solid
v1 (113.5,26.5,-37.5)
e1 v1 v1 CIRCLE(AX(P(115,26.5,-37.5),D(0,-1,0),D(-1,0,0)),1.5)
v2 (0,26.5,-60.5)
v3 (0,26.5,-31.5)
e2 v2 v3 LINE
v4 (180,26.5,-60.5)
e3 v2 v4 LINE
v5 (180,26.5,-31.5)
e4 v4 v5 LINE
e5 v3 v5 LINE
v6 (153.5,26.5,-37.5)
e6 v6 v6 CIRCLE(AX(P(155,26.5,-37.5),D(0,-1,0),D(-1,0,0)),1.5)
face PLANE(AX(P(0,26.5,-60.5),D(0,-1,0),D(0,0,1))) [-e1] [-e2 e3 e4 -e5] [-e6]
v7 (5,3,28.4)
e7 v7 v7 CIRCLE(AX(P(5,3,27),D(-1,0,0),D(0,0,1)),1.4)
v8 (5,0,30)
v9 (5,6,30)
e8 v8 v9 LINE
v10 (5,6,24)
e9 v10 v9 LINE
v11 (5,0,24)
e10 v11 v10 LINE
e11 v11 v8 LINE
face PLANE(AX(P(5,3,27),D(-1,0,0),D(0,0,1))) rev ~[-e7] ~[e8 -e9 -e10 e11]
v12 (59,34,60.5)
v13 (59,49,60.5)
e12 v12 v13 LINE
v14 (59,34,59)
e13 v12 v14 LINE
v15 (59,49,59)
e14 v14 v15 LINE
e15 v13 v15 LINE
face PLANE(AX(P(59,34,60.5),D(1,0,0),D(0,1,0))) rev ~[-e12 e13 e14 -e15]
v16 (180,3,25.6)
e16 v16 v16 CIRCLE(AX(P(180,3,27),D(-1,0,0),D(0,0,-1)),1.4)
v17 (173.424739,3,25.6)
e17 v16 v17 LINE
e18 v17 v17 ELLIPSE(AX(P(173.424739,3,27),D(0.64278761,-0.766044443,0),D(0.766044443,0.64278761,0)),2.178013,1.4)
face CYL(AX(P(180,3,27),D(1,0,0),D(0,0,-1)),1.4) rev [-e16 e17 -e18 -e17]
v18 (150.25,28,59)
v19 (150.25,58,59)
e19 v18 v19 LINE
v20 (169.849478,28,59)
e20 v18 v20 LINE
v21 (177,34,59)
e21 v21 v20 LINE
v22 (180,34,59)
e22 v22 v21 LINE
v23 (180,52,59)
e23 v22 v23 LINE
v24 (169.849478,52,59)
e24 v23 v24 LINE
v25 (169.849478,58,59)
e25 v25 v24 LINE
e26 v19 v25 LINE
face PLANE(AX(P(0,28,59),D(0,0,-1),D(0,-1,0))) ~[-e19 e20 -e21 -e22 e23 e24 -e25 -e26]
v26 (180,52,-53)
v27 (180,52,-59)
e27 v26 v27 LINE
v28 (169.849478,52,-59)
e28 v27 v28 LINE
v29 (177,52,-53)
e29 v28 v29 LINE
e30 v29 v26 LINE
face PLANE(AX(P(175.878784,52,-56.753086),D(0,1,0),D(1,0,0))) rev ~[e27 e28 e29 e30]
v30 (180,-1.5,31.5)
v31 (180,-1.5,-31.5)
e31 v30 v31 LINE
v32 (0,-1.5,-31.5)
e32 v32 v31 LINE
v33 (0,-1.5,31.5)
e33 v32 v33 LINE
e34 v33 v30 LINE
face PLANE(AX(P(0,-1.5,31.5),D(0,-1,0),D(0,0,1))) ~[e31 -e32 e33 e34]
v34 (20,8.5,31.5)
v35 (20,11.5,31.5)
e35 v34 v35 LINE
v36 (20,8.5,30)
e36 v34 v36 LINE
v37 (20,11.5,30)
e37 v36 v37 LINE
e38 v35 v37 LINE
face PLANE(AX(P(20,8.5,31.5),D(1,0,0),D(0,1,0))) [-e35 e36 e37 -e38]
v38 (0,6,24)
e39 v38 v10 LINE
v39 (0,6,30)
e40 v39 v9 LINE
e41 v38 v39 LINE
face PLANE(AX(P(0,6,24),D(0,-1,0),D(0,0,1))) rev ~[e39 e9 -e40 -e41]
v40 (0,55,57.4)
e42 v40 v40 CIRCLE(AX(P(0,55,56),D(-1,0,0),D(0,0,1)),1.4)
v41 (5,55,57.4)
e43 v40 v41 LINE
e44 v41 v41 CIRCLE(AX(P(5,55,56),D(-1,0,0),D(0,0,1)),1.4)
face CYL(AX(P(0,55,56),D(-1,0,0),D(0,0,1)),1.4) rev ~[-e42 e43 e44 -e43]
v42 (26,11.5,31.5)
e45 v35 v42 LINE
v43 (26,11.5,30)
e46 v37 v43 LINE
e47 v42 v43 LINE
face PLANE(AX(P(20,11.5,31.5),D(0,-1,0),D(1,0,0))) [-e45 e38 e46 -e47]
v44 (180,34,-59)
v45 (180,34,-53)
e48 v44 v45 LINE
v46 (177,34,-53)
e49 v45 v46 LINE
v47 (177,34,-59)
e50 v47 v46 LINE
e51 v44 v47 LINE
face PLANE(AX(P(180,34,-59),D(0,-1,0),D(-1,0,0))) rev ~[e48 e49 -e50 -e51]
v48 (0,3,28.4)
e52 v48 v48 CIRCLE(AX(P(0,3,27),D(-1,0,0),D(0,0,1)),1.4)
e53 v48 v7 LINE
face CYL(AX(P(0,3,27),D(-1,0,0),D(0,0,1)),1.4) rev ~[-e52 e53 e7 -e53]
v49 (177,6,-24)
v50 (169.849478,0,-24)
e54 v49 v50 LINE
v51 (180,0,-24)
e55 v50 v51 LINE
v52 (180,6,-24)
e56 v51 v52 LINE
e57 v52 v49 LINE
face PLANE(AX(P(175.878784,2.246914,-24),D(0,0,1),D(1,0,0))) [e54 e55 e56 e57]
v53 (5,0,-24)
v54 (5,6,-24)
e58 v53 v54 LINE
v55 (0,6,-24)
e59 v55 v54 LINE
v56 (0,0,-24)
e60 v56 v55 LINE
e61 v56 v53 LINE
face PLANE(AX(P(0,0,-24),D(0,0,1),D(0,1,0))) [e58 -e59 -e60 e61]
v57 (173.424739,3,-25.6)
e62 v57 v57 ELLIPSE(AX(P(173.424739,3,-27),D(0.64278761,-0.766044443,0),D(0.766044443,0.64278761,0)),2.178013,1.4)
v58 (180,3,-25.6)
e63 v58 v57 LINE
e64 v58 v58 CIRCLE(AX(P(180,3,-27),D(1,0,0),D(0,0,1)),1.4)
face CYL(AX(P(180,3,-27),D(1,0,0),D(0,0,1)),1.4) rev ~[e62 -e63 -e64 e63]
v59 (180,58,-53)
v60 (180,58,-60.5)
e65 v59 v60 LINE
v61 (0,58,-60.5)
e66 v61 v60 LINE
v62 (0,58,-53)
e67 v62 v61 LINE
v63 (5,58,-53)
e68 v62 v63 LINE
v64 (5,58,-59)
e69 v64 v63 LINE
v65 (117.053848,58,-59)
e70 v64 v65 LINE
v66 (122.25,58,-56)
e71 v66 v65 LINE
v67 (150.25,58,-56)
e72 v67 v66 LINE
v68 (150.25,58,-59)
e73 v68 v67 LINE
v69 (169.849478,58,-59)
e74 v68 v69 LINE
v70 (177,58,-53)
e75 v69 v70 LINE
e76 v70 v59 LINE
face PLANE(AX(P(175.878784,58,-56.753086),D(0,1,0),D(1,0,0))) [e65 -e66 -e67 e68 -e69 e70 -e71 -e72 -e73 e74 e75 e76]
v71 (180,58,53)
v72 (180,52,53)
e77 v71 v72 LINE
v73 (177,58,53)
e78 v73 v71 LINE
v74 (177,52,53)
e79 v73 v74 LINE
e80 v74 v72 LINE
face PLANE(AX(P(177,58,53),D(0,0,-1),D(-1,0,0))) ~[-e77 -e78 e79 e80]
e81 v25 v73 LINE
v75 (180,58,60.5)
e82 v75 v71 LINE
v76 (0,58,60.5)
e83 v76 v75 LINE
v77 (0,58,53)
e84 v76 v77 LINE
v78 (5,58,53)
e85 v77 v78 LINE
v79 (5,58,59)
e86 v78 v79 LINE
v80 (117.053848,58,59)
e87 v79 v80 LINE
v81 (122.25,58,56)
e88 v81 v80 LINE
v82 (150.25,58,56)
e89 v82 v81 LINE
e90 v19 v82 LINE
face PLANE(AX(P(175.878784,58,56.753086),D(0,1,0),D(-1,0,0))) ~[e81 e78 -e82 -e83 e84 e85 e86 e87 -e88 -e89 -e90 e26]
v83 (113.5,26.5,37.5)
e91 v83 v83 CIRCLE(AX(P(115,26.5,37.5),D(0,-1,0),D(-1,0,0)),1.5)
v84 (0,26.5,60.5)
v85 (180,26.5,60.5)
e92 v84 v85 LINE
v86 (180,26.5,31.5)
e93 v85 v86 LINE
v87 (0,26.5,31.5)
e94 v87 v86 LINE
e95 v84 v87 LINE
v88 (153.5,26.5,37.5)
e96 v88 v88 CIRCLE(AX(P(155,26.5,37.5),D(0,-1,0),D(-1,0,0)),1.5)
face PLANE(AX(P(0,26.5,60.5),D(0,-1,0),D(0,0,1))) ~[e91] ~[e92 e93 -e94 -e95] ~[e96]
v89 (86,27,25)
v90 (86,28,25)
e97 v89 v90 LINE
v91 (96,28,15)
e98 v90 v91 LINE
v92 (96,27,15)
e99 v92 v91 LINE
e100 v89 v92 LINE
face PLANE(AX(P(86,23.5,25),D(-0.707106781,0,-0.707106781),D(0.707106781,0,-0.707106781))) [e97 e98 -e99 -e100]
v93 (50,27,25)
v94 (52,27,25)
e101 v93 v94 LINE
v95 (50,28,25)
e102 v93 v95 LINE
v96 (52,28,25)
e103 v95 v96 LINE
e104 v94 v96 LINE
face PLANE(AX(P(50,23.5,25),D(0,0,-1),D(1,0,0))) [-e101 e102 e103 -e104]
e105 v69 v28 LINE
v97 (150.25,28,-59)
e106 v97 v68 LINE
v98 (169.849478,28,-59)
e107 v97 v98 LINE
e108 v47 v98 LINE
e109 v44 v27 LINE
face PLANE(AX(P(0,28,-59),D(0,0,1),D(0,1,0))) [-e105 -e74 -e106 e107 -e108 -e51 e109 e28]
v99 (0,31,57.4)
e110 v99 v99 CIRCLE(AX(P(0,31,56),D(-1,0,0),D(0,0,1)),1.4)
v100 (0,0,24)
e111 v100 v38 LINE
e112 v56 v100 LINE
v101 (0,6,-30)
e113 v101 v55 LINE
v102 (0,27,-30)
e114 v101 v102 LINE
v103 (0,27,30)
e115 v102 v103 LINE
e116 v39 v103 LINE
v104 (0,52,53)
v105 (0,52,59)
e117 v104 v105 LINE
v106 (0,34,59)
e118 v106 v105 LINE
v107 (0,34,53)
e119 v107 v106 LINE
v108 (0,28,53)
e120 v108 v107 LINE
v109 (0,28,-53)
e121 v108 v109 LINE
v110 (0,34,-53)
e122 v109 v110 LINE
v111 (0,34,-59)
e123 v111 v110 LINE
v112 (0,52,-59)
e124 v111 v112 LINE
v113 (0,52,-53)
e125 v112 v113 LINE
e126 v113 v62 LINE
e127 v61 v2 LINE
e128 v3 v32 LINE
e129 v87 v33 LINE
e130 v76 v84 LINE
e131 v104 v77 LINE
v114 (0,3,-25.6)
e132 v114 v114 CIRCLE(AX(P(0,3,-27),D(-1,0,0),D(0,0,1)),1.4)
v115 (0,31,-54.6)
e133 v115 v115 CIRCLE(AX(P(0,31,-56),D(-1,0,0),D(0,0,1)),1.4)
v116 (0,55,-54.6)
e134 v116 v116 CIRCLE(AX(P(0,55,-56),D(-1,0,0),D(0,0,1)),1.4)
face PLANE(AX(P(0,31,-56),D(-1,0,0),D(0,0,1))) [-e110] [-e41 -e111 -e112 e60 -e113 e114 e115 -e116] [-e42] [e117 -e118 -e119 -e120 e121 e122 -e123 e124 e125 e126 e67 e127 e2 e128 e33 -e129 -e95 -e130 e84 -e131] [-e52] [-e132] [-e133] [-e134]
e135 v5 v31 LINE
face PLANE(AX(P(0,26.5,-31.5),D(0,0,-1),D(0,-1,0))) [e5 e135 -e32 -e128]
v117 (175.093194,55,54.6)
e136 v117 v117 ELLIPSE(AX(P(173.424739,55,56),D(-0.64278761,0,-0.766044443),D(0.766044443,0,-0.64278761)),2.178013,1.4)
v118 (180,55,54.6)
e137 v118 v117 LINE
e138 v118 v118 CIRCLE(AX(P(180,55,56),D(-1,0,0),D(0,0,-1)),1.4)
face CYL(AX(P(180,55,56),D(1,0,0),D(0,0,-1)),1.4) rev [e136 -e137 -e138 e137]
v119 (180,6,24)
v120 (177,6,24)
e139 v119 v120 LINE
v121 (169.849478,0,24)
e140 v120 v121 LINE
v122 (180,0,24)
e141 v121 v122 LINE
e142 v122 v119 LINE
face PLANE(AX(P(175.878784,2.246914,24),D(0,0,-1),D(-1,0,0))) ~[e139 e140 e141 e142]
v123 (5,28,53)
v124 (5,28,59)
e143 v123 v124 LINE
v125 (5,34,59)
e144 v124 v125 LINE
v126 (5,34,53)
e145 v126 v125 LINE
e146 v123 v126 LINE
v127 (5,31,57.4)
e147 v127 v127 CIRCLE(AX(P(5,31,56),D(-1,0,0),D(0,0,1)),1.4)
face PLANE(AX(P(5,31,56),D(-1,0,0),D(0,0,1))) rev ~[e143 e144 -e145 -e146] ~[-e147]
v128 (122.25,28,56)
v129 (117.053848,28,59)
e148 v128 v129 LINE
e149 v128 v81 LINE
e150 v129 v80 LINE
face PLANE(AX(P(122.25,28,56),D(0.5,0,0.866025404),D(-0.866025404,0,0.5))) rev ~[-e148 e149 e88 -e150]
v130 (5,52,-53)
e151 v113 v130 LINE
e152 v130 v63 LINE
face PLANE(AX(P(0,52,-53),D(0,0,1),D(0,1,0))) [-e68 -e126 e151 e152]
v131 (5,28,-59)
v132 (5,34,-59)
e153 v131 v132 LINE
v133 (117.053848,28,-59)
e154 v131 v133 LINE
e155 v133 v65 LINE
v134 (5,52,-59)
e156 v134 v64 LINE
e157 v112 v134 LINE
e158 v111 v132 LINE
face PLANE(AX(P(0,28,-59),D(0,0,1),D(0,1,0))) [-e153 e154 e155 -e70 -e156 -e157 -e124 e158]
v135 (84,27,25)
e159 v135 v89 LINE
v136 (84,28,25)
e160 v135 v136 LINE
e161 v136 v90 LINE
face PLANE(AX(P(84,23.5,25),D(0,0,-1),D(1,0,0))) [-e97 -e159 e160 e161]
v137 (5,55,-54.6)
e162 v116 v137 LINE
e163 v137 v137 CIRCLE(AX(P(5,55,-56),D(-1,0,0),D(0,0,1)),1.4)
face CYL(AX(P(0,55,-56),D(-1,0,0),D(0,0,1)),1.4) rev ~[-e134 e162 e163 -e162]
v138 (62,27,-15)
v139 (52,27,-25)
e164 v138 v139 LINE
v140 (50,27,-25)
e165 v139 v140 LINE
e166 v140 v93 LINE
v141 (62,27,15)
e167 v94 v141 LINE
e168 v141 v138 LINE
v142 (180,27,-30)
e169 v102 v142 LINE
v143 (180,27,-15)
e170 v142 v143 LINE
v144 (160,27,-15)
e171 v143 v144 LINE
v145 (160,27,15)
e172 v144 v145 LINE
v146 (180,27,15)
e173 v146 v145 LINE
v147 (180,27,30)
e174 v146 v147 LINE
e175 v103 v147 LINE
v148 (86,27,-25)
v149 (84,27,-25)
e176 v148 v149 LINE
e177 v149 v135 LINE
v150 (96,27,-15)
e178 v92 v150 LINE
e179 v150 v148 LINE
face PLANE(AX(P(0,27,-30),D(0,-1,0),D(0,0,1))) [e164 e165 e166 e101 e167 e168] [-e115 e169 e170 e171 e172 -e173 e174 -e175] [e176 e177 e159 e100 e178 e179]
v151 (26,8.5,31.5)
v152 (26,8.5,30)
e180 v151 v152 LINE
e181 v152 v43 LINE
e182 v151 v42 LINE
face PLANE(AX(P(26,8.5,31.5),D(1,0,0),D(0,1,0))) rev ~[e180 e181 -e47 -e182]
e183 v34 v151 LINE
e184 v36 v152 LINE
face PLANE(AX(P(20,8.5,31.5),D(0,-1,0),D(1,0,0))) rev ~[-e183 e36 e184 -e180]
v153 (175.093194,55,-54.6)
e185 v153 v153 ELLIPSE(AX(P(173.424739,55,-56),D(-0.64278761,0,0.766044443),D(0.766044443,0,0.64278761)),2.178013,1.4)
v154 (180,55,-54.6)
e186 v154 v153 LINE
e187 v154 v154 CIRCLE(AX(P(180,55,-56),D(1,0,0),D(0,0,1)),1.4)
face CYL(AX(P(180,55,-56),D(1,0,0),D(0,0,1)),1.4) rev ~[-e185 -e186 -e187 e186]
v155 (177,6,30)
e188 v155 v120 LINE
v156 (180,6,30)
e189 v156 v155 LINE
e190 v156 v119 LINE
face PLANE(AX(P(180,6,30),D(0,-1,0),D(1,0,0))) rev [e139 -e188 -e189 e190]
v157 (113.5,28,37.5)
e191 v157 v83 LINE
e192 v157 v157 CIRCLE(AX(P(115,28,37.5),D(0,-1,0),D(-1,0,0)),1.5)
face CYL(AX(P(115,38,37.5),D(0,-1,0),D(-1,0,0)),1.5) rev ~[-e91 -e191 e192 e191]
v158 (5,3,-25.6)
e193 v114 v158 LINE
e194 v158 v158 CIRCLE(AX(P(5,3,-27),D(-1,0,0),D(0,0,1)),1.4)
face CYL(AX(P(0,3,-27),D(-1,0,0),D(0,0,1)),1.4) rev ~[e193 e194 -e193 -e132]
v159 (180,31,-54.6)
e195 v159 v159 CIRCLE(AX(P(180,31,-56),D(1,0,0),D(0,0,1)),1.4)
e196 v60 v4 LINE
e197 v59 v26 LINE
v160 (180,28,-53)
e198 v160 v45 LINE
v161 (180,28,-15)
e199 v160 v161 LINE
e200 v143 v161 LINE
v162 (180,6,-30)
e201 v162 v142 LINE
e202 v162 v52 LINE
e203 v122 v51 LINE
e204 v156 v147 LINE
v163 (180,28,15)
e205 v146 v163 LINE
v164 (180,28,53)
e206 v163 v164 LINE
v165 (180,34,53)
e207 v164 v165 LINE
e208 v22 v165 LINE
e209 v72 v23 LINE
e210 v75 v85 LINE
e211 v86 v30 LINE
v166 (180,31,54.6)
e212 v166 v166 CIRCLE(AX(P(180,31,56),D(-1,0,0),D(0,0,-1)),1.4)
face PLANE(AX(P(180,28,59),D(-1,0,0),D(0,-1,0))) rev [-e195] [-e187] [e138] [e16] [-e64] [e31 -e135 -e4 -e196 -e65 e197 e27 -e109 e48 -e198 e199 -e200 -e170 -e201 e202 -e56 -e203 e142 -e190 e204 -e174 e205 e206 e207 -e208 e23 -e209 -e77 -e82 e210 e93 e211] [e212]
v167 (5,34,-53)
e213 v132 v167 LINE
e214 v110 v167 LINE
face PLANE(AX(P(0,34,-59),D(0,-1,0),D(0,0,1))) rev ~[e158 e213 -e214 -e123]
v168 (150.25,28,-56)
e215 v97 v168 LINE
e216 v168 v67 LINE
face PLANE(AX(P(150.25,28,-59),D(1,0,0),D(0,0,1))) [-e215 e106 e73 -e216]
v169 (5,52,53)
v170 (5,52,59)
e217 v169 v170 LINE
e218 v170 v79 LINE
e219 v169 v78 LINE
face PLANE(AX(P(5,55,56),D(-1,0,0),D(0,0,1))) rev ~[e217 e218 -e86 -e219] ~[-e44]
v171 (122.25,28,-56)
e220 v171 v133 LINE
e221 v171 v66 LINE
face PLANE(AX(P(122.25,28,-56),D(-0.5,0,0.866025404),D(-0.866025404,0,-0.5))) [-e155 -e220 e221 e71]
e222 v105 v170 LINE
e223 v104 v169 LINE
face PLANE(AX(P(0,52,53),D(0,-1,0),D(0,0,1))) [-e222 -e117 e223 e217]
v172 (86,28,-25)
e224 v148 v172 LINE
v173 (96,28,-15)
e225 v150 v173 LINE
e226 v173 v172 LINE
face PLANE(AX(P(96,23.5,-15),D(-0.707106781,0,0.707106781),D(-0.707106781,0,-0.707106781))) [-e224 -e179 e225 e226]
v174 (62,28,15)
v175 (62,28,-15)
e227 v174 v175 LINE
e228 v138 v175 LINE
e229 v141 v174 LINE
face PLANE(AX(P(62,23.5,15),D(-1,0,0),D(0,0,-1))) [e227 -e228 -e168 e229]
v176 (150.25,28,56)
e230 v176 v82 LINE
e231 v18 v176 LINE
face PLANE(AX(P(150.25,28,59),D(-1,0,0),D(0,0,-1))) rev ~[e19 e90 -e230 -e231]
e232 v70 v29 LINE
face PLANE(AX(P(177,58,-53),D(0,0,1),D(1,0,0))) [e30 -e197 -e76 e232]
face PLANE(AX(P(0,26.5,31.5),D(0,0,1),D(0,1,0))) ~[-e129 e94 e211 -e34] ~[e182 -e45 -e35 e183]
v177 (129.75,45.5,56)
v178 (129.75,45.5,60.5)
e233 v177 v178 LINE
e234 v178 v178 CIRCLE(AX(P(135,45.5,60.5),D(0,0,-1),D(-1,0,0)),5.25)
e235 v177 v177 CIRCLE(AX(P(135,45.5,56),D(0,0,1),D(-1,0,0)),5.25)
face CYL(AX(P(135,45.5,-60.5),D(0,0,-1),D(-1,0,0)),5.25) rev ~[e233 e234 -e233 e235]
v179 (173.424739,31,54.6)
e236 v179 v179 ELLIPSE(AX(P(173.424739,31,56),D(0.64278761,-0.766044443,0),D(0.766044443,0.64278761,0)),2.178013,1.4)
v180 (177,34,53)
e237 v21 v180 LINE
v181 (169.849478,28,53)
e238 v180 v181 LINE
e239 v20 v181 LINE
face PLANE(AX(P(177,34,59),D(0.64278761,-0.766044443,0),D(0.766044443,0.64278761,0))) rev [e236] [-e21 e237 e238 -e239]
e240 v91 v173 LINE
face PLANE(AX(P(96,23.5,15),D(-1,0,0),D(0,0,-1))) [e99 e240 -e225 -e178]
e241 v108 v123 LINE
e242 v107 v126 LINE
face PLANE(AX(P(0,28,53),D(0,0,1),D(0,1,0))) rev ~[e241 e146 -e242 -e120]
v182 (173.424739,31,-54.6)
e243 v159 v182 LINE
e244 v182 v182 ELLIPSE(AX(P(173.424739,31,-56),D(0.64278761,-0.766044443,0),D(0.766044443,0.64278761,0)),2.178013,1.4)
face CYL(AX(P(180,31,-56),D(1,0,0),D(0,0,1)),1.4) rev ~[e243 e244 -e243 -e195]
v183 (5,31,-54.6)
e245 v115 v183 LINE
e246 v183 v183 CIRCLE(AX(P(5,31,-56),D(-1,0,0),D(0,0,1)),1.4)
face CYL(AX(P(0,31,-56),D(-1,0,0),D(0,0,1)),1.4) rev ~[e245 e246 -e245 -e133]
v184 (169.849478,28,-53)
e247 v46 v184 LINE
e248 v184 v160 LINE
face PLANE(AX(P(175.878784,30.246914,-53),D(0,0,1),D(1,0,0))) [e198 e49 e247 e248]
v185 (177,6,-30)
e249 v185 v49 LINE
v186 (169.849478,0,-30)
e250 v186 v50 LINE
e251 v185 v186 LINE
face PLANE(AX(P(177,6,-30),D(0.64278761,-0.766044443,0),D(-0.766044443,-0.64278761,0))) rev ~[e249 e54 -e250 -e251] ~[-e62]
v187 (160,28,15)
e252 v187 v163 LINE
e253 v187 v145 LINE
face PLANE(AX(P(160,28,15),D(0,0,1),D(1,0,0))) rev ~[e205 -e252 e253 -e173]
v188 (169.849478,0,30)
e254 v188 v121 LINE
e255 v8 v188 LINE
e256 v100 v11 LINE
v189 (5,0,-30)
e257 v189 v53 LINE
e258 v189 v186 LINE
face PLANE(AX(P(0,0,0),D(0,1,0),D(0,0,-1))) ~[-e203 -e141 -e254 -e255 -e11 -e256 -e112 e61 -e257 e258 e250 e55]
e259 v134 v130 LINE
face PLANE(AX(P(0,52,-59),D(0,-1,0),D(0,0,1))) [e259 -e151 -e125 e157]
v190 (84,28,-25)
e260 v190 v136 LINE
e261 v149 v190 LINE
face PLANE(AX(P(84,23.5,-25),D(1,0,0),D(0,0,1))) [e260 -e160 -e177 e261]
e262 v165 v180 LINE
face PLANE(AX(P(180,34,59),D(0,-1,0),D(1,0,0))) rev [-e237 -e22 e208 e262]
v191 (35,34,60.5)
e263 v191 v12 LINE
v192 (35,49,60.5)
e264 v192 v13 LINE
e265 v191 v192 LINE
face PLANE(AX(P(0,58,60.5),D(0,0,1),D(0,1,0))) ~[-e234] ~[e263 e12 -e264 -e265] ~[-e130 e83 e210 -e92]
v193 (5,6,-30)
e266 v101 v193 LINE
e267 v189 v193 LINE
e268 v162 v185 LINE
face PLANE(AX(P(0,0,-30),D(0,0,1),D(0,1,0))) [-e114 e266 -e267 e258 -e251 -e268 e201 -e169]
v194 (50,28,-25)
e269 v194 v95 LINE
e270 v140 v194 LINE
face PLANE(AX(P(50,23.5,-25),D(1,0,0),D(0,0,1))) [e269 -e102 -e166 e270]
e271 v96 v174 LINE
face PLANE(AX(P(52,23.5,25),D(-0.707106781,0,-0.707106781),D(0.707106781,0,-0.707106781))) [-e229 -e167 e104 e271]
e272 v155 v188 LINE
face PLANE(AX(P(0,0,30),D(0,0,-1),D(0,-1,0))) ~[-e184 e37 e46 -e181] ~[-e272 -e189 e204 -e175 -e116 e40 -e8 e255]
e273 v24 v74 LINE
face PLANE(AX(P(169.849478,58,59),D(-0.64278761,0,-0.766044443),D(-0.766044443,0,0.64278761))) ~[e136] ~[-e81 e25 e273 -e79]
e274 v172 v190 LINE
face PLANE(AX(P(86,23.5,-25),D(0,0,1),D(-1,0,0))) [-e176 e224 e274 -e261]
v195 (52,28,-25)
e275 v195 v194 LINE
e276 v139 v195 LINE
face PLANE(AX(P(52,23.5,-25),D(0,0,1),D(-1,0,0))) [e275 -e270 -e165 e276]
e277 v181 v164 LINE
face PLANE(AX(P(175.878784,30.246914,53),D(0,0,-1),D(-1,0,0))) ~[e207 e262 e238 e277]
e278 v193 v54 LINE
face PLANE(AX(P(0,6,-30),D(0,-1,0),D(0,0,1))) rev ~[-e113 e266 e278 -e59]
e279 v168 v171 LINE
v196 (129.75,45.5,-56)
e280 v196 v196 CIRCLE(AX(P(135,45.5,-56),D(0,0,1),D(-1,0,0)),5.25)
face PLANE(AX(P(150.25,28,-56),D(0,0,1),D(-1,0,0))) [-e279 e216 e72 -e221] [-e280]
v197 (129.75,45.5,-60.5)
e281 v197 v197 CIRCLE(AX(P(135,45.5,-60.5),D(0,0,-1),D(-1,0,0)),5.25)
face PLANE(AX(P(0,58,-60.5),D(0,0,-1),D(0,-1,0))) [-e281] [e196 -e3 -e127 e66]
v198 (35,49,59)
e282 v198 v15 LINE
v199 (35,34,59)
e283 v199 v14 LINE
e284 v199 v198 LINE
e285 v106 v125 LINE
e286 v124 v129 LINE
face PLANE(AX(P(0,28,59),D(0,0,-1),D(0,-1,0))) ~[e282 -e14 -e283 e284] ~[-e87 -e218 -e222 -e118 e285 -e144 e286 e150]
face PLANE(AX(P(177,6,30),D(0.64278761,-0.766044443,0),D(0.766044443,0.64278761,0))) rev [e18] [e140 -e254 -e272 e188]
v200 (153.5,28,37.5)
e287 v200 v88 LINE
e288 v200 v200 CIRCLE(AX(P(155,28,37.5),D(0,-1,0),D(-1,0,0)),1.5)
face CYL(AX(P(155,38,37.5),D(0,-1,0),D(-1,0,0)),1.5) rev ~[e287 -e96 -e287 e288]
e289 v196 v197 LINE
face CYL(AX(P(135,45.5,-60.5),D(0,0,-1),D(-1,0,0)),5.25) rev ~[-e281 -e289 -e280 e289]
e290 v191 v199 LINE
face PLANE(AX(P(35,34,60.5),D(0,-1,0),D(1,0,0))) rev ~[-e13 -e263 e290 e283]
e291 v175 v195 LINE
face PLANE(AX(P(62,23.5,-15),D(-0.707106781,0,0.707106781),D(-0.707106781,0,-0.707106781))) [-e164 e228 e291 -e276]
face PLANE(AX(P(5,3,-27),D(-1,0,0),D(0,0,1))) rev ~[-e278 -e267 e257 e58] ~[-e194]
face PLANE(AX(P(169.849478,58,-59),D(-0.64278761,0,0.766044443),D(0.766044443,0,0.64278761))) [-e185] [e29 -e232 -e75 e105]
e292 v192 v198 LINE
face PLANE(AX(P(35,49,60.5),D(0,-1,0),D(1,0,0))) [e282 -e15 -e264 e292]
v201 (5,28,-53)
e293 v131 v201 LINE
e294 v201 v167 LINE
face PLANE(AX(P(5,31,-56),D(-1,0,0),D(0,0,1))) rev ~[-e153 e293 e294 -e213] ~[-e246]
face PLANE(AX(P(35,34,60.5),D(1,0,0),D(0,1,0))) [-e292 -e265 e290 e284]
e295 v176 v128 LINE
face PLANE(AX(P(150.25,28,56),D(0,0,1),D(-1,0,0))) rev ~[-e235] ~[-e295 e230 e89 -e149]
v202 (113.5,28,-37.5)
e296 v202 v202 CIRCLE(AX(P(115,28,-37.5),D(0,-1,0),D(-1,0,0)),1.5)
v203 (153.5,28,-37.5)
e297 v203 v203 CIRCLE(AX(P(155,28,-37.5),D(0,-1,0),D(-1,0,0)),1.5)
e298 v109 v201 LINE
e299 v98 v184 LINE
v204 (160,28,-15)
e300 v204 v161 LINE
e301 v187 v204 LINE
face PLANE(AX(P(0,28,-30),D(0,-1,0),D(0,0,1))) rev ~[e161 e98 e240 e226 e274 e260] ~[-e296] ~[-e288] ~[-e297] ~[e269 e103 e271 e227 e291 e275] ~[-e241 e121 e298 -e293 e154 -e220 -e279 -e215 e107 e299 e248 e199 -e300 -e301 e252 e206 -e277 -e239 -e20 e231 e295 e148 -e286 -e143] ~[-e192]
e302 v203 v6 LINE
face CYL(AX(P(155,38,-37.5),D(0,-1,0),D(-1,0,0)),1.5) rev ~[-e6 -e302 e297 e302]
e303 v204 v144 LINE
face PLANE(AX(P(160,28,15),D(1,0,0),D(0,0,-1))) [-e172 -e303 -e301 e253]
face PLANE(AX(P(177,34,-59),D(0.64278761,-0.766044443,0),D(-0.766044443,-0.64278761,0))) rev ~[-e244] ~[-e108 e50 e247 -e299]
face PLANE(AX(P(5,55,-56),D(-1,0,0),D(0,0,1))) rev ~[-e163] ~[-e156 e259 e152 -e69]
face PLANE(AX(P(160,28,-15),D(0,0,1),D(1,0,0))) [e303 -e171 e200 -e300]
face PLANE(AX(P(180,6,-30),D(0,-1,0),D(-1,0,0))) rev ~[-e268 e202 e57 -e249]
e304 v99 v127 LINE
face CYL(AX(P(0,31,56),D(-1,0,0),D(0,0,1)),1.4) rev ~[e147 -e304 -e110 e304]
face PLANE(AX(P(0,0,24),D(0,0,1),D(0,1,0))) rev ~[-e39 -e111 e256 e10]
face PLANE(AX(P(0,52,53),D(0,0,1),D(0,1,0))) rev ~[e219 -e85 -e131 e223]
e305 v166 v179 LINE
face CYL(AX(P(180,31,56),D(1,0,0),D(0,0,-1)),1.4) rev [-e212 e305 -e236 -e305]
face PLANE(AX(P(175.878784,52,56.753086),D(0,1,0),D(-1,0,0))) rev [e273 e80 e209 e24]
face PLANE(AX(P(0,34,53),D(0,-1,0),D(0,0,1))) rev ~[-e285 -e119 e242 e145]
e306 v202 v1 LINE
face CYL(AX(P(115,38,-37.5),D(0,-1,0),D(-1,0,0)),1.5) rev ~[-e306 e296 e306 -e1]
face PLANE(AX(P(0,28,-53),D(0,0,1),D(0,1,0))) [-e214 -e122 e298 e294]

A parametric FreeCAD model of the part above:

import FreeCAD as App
import Part
import Sketcher

V = App.Vector
Q = App.Units.Quantity

doc = App.newDocument("Part")
body = doc.addObject("PartDesign::Body", "Body")

sketch1 = doc.addObject("Sketcher::SketchObject", "Sketch")
body.addObject(sketch1)
sketch1.AttachmentSupport = (doc.YZ_Plane, [""])
sketch1.MapMode = "FlatFace"
sketch1.addGeometry([
    Part.LineSegment(V(0, -30, 0), V(0, 0, 0)),
    Part.LineSegment(V(0, 0, 0), V(-1.5, 0, 0)),
    Part.LineSegment(V(-1.5, 0, 0), V(-1.5, -31.5, 0)),
    Part.LineSegment(V(-1.5, -31.5, 0), V(26.5, -31.5, 0)),
    Part.LineSegment(V(26.5, -31.5, 0), V(26.5, -60.5, 0)),
    Part.LineSegment(V(26.5, -60.5, 0), V(58, -60.5, 0)),
    Part.LineSegment(V(58, -60.5, 0), V(58, -59, 0)),
    Part.LineSegment(V(58, -59, 0), V(28, -59, 0)),
    Part.LineSegment(V(28, -59, 0), V(28, -30, 0)),
    Part.LineSegment(V(28, -30, 0), V(0, -30, 0)),
], False)
sketch1.addConstraint([
    Sketcher.Constraint("Coincident", 0, 2, 1, 1),
    Sketcher.Constraint("Coincident", 1, 2, 2, 1),
    Sketcher.Constraint("Coincident", 2, 2, 3, 1),
    Sketcher.Constraint("Coincident", 3, 2, 4, 1),
    Sketcher.Constraint("Coincident", 4, 2, 5, 1),
    Sketcher.Constraint("Coincident", 5, 2, 6, 1),
    Sketcher.Constraint("Coincident", 6, 2, 7, 1),
    Sketcher.Constraint("Coincident", 7, 2, 8, 1),
    Sketcher.Constraint("Coincident", 8, 2, 9, 1),
    Sketcher.Constraint("Coincident", 9, 2, 0, 1),
    Sketcher.Constraint("Vertical", 0),
    Sketcher.Constraint("Horizontal", 1),
    Sketcher.Constraint("Vertical", 2),
    Sketcher.Constraint("Horizontal", 3),
    Sketcher.Constraint("Vertical", 4),
    Sketcher.Constraint("Horizontal", 5),
    Sketcher.Constraint("Vertical", 6),
    Sketcher.Constraint("Horizontal", 7),
    Sketcher.Constraint("Vertical", 8),
    Sketcher.Constraint("Horizontal", 9),
    Sketcher.Constraint("Coincident", 0, 2, -1, 1),
    Sketcher.Constraint("Equal", 3, 9),
    Sketcher.Constraint("Equal", 7, 0),
    Sketcher.Constraint("Equal", 5, 2),
    Sketcher.Constraint("Equal", 1, 6),
    Sketcher.Constraint("DistanceX", 3, 1, 3, 2, Q("28 mm")),
    Sketcher.Constraint("DistanceX", 7, 2, 7, 1, Q("30 mm")),
    Sketcher.Constraint("DistanceY", 4, 2, 4, 1, Q("29 mm")),
    Sketcher.Constraint("DistanceX", 1, 2, 1, 1, Q("1.5 mm")),
])
pad1 = doc.addObject("PartDesign::Pad", "Pad")
body.addObject(pad1)
pad1.Profile = sketch1
pad1.Length = 180
doc.recompute()

mirrored = doc.addObject("PartDesign::Mirrored", "Mirrored")
body.addObject(mirrored)
mirrored.Originals = [pad1]
mirrored.MirrorPlane = (doc.XY_Plane, [""])
body.Tip = mirrored

sketch2 = doc.addObject("Sketcher::SketchObject", "Sketch001")
body.addObject(sketch2)
sketch2.AttachmentSupport = (doc.YZ_Plane, [""])
sketch2.MapMode = "FlatFace"
sketch2.addGeometry([
    Part.LineSegment(V(28, -30, 0), V(27, -30, 0)),
    Part.LineSegment(V(27, -30, 0), V(27, 30, 0)),
    Part.LineSegment(V(27, 30, 0), V(28, 30, 0)),
    Part.LineSegment(V(28, 30, 0), V(28, -30, 0)),
], False)
sketch2.addConstraint([
    Sketcher.Constraint("Coincident", 0, 2, 1, 1),
    Sketcher.Constraint("Coincident", 1, 2, 2, 1),
    Sketcher.Constraint("Coincident", 2, 2, 3, 1),
    Sketcher.Constraint("Coincident", 3, 2, 0, 1),
    Sketcher.Constraint("Horizontal", 0),
    Sketcher.Constraint("Vertical", 1),
    Sketcher.Constraint("Horizontal", 2),
    Sketcher.Constraint("Vertical", 3),
    Sketcher.Constraint("DistanceX", 0, 2, 0, 1, Q("1 mm")),
    Sketcher.Constraint("DistanceY", 1, 1, 1, 2, Q("60 mm")),
    Sketcher.Constraint("DistanceX", -1, 1, 0, 2, Q("27 mm")),
    Sketcher.Constraint("DistanceY", 0, 2, -1, 1, Q("30 mm")),
])
pad2 = doc.addObject("PartDesign::Pad", "Pad001")
body.addObject(pad2)
pad2.Profile = sketch2
pad2.Length = 180

sketch3 = doc.addObject("Sketcher::SketchObject", "Sketch002")
body.addObject(sketch3)
sketch3.AttachmentSupport = (doc.XZ_Plane, [""])
sketch3.MapMode = "FlatFace"
sketch3.AttachmentOffset = App.Placement(V(0, 0, -28), App.Rotation())
sketch3.addGeometry([
    Part.LineSegment(V(160, -15, 0), V(160, 15, 0)),
    Part.LineSegment(V(160, 15, 0), V(200, 15, 0)),
    Part.LineSegment(V(200, 15, 0), V(200, -15, 0)),
    Part.LineSegment(V(200, -15, 0), V(160, -15, 0)),
], False)
sketch3.addConstraint([
    Sketcher.Constraint("Coincident", 0, 2, 1, 1),
    Sketcher.Constraint("Coincident", 1, 2, 2, 1),
    Sketcher.Constraint("Coincident", 2, 2, 3, 1),
    Sketcher.Constraint("Coincident", 3, 2, 0, 1),
    Sketcher.Constraint("Vertical", 0),
    Sketcher.Constraint("Horizontal", 1),
    Sketcher.Constraint("Vertical", 2),
    Sketcher.Constraint("Horizontal", 3),
    Sketcher.Constraint("DistanceX", 1, 1, 1, 2, Q("40 mm")),
    Sketcher.Constraint("DistanceY", 0, 1, 0, 2, Q("30 mm")),
    Sketcher.Constraint("DistanceX", -1, 1, 0, 2, Q("160 mm")),
    Sketcher.Constraint("DistanceY", -1, 1, 0, 2, Q("15 mm")),
])
pocket1 = doc.addObject("PartDesign::Pocket", "Pocket")
body.addObject(pocket1)
pocket1.Profile = sketch3
pocket1.Length = 3
pocket1.Reversed = True

sketch4 = doc.addObject("Sketcher::SketchObject", "Sketch003")
body.addObject(sketch4)
sketch4.AttachmentSupport = (doc.YZ_Plane, [""])
sketch4.MapMode = "FlatFace"
sketch4.addGeometry([
    Part.LineSegment(V(34, -59, 0), V(28, -59, 0)),
    Part.LineSegment(V(28, -59, 0), V(28, -53, 0)),
    Part.LineSegment(V(28, -53, 0), V(34, -53, 0)),
    Part.LineSegment(V(34, -53, 0), V(34, -59, 0)),
    Part.LineSegment(V(58, -59, 0), V(52, -59, 0)),
    Part.LineSegment(V(52, -59, 0), V(52, -53, 0)),
    Part.LineSegment(V(52, -53, 0), V(58, -53, 0)),
    Part.LineSegment(V(58, -53, 0), V(58, -59, 0)),
    Part.LineSegment(V(58, 53, 0), V(52, 53, 0)),
    Part.LineSegment(V(52, 53, 0), V(52, 59, 0)),
    Part.LineSegment(V(52, 59, 0), V(58, 59, 0)),
    Part.LineSegment(V(58, 59, 0), V(58, 53, 0)),
    Part.LineSegment(V(34, 53, 0), V(28, 53, 0)),
    Part.LineSegment(V(28, 53, 0), V(28, 59, 0)),
    Part.LineSegment(V(28, 59, 0), V(34, 59, 0)),
    Part.LineSegment(V(34, 59, 0), V(34, 53, 0)),
    Part.LineSegment(V(6, 24, 0), V(0, 24, 0)),
    Part.LineSegment(V(0, 24, 0), V(0, 30, 0)),
    Part.LineSegment(V(0, 30, 0), V(6, 30, 0)),
    Part.LineSegment(V(6, 30, 0), V(6, 24, 0)),
    Part.LineSegment(V(6, -30, 0), V(0, -30, 0)),
    Part.LineSegment(V(0, -30, 0), V(0, -24, 0)),
    Part.LineSegment(V(0, -24, 0), V(6, -24, 0)),
    Part.LineSegment(V(6, -24, 0), V(6, -30, 0)),
], False)
sketch4.addConstraint([
    Sketcher.Constraint("Coincident", 0, 2, 1, 1),
    Sketcher.Constraint("Coincident", 1, 2, 2, 1),
    Sketcher.Constraint("Coincident", 2, 2, 3, 1),
    Sketcher.Constraint("Coincident", 3, 2, 0, 1),
    Sketcher.Constraint("Coincident", 4, 2, 5, 1),
    Sketcher.Constraint("Coincident", 5, 2, 6, 1),
    Sketcher.Constraint("Coincident", 6, 2, 7, 1),
    Sketcher.Constraint("Coincident", 7, 2, 4, 1),
    Sketcher.Constraint("Coincident", 8, 2, 9, 1),
    Sketcher.Constraint("Coincident", 9, 2, 10, 1),
    Sketcher.Constraint("Coincident", 10, 2, 11, 1),
    Sketcher.Constraint("Coincident", 11, 2, 8, 1),
    Sketcher.Constraint("Coincident", 12, 2, 13, 1),
    Sketcher.Constraint("Coincident", 13, 2, 14, 1),
    Sketcher.Constraint("Coincident", 14, 2, 15, 1),
    Sketcher.Constraint("Coincident", 15, 2, 12, 1),
    Sketcher.Constraint("Coincident", 16, 2, 17, 1),
    Sketcher.Constraint("Coincident", 17, 2, 18, 1),
    Sketcher.Constraint("Coincident", 18, 2, 19, 1),
    Sketcher.Constraint("Coincident", 19, 2, 16, 1),
    Sketcher.Constraint("Coincident", 20, 2, 21, 1),
    Sketcher.Constraint("Coincident", 21, 2, 22, 1),
    Sketcher.Constraint("Coincident", 22, 2, 23, 1),
    Sketcher.Constraint("Coincident", 23, 2, 20, 1),
    Sketcher.Constraint("Horizontal", 0),
    Sketcher.Constraint("Vertical", 1),
    Sketcher.Constraint("Horizontal", 2),
    Sketcher.Constraint("Vertical", 3),
    Sketcher.Constraint("Horizontal", 4),
    Sketcher.Constraint("Vertical", 5),
    Sketcher.Constraint("Horizontal", 6),
    Sketcher.Constraint("Vertical", 7),
    Sketcher.Constraint("Horizontal", 8),
    Sketcher.Constraint("Vertical", 9),
    Sketcher.Constraint("Horizontal", 10),
    Sketcher.Constraint("Vertical", 11),
    Sketcher.Constraint("Horizontal", 12),
    Sketcher.Constraint("Vertical", 13),
    Sketcher.Constraint("Horizontal", 14),
    Sketcher.Constraint("Vertical", 15),
    Sketcher.Constraint("Horizontal", 16),
    Sketcher.Constraint("Vertical", 17),
    Sketcher.Constraint("Horizontal", 18),
    Sketcher.Constraint("Vertical", 19),
    Sketcher.Constraint("Horizontal", 20),
    Sketcher.Constraint("Vertical", 21),
    Sketcher.Constraint("Horizontal", 22),
    Sketcher.Constraint("Vertical", 23),
    Sketcher.Constraint("Symmetric", 17, 2, 20, 2, -1, 1),
    Sketcher.Constraint("Symmetric", 5, 2, 8, 2, -1),
    Sketcher.Constraint("Symmetric", 7, 2, 10, 2, -1),
    Sketcher.Constraint("Symmetric", 1, 2, 12, 2, -1),
    Sketcher.Constraint("Symmetric", 3, 2, 14, 2, -1),
    Sketcher.Constraint("Symmetric", 16, 2, 21, 2, -1),
    Sketcher.Constraint("Horizontal", 3, 2, 4, 2),
    Sketcher.Constraint("Horizontal", 2, 2, 5, 2),
    Sketcher.Constraint("Vertical", 19, 2, 22, 2),
    Sketcher.Constraint("Equal", 2, 4),
    Sketcher.Constraint("Equal", 14, 16),
    Sketcher.Constraint("Equal", 22, 1),
    Sketcher.Constraint("Equal", 15, 17),
    Sketcher.Constraint("DistanceX", 0, 2, 0, 1, Q("6 mm")),
    Sketcher.Constraint("DistanceX", -1, 1, 0, 2, Q("28 mm")),
    Sketcher.Constraint("DistanceY", 0, 2, -1, 1, Q("59 mm")),
    Sketcher.Constraint("DistanceX", -1, 1, 4, 2, Q("52 mm")),
    Sketcher.Constraint("DistanceY", -1, 1, 16, 2, Q("24 mm")),
])
pad3 = doc.addObject("PartDesign::Pad", "Pad002")
body.addObject(pad3)
pad3.Profile = sketch4
pad3.Length = 5

sketch5 = doc.addObject("Sketcher::SketchObject", "Sketch004")
body.addObject(sketch5)
sketch5.AttachmentSupport = (doc.YZ_Plane, [""])
sketch5.MapMode = "FlatFace"
sketch5.addGeometry([
    Part.Circle(V(55, -56, 0), V(0, 0, 1), 1.4),
    Part.Circle(V(31, -56, 0), V(0, 0, 1), 1.4),
    Part.Circle(V(3, -27, 0), V(0, 0, 1), 1.4),
    Part.Circle(V(3, 27, 0), V(0, 0, 1), 1.4),
    Part.Circle(V(31, 56, 0), V(0, 0, 1), 1.4),
    Part.Circle(V(55, 56, 0), V(0, 0, 1), 1.4),
], False)
sketch5.addConstraint([
    Sketcher.Constraint("Equal", 0, 1),
    Sketcher.Constraint("Equal", 1, 2),
    Sketcher.Constraint("Equal", 2, 3),
    Sketcher.Constraint("Equal", 3, 4),
    Sketcher.Constraint("Equal", 4, 5),
    Sketcher.Constraint("Symmetric", 2, 3, 3, 3, -1),
    Sketcher.Constraint("Symmetric", 1, 3, 4, 3, -1),
    Sketcher.Constraint("Symmetric", 0, 3, 5, 3, -1),
    Sketcher.Constraint("Horizontal", 0, 3, 1, 3),
    Sketcher.Constraint("Diameter", 0, Q("2.8 mm")),
    Sketcher.Constraint("DistanceX", -1, 1, 0, 3, Q("55 mm")),
    Sketcher.Constraint("DistanceY", 0, 3, -1, 1, Q("56 mm")),
    Sketcher.Constraint("DistanceX", -1, 1, 1, 3, Q("31 mm")),
    Sketcher.Constraint("DistanceX", -1, 1, 2, 3, Q("3 mm")),
    Sketcher.Constraint("DistanceY", 2, 3, -1, 1, Q("27 mm")),
])
pocket2 = doc.addObject("PartDesign::Pocket", "Pocket001")
body.addObject(pocket2)
pocket2.Profile = sketch5
pocket2.Length = 5
pocket2.Reversed = True

sketch6 = doc.addObject("Sketcher::SketchObject", "Sketch005")
body.addObject(sketch6)
sketch6.AttachmentSupport = (doc.XY_Plane, [""])
sketch6.MapMode = "FlatFace"
sketch6.AttachmentOffset = App.Placement(V(0, 0, -60.5), App.Rotation())
sketch6.addGeometry(Part.Circle(V(135, 46, 0), V(0, 0, 1), 5), False)
sketch6.addConstraint([
    Sketcher.Constraint("Diameter", 0, Q("10.5 mm")),
    Sketcher.Constraint("DistanceX", -1, 1, 0, 3, Q("135 mm")),
    Sketcher.Constraint("DistanceY", -1, 1, 0, 3, Q("45.5 mm")),
])
pocket3 = doc.addObject("PartDesign::Pocket", "Pocket002")
body.addObject(pocket3)
pocket3.Profile = sketch6
pocket3.Type = "ThroughAll"
pocket3.Reversed = True

sketch7 = doc.addObject("Sketcher::SketchObject", "Sketch006")
body.addObject(sketch7)
sketch7.AttachmentSupport = (doc.XY_Plane, [""])
sketch7.MapMode = "FlatFace"
sketch7.AttachmentOffset = App.Placement(V(0, 0, -30), App.Rotation())
sketch7.addGeometry([
    Part.LineSegment(V(180, 0, 0), V(180, 6, 0)),
    Part.LineSegment(V(180, 6, 0), V(177, 6, 0)),
    Part.LineSegment(V(177, 6, 0), V(169.8, 0, 0)),
    Part.LineSegment(V(169.8, 0, 0), V(180, 0, 0)),
], False)
sketch7.addConstraint([
    Sketcher.Constraint("Coincident", 0, 2, 1, 1),
    Sketcher.Constraint("Coincident", 1, 2, 2, 1),
    Sketcher.Constraint("Coincident", 2, 2, 3, 1),
    Sketcher.Constraint("Coincident", 3, 2, 0, 1),
    Sketcher.Constraint("Vertical", 0),
    Sketcher.Constraint("Horizontal", 1),
    Sketcher.Constraint("Horizontal", 3),
    Sketcher.Constraint("PointOnObject", 2, 2, -1),
    Sketcher.Constraint("DistanceX", 1, 2, 1, 1, Q("3 mm")),
    Sketcher.Constraint("DistanceY", 0, 1, 0, 2, Q("6 mm")),
    Sketcher.Constraint("Angle", 2, Q("-140 deg")),
    Sketcher.Constraint("DistanceX", -1, 1, 0, 2, Q("180 mm")),
])
pad4 = doc.addObject("PartDesign::Pad", "Pad003")
body.addObject(pad4)
pad4.Profile = sketch7
pad4.Length = 6

sketch8 = doc.addObject("Sketcher::SketchObject", "Sketch007")
body.addObject(sketch8)
sketch8.AttachmentSupport = (doc.YZ_Plane, [""])
sketch8.MapMode = "FlatFace"
sketch8.AttachmentOffset = App.Placement(V(0, 0, 180), App.Rotation())
sketch8.addGeometry(Part.Circle(V(3, -27, 0), V(0, 0, 1), 1.4), False)
sketch8.addConstraint([
    Sketcher.Constraint("Diameter", 0, Q("2.8 mm")),
    Sketcher.Constraint("DistanceX", -1, 1, 0, 3, Q("3 mm")),
    Sketcher.Constraint("DistanceY", 0, 3, -1, 1, Q("27 mm")),
])
pocket4 = doc.addObject("PartDesign::Pocket", "Pocket003")
body.addObject(pocket4)
pocket4.Profile = sketch8
pocket4.Length = 10

sketch9 = doc.addObject("Sketcher::SketchObject", "Sketch008")
body.addObject(sketch9)
sketch9.AttachmentSupport = (doc.XY_Plane, [""])
sketch9.MapMode = "FlatFace"
sketch9.AttachmentOffset = App.Placement(V(0, 0, -59), App.Rotation())
sketch9.addGeometry([
    Part.LineSegment(V(180, 28, 0), V(180, 34, 0)),
    Part.LineSegment(V(180, 34, 0), V(177, 34, 0)),
    Part.LineSegment(V(177, 34, 0), V(169.8, 28, 0)),
    Part.LineSegment(V(169.8, 28, 0), V(180, 28, 0)),
], False)
sketch9.addConstraint([
    Sketcher.Constraint("Coincident", 0, 2, 1, 1),
    Sketcher.Constraint("Coincident", 1, 2, 2, 1),
    Sketcher.Constraint("Coincident", 2, 2, 3, 1),
    Sketcher.Constraint("Coincident", 3, 2, 0, 1),
    Sketcher.Constraint("Vertical", 0),
    Sketcher.Constraint("Horizontal", 1),
    Sketcher.Constraint("Horizontal", 3),
    Sketcher.Constraint("DistanceX", 1, 2, 1, 1, Q("3 mm")),
    Sketcher.Constraint("DistanceY", 0, 1, 0, 2, Q("6 mm")),
    Sketcher.Constraint("Angle", 2, Q("-140 deg")),
    Sketcher.Constraint("DistanceX", -1, 1, 0, 2, Q("180 mm")),
    Sketcher.Constraint("DistanceY", -1, 1, 0, 2, Q("34 mm")),
])
pad5 = doc.addObject("PartDesign::Pad", "Pad004")
body.addObject(pad5)
pad5.Profile = sketch9
pad5.Length = 6

sketch10 = doc.addObject("Sketcher::SketchObject", "Sketch009")
body.addObject(sketch10)
sketch10.AttachmentSupport = (doc.YZ_Plane, [""])
sketch10.MapMode = "FlatFace"
sketch10.AttachmentOffset = App.Placement(V(0, 0, 180), App.Rotation())
sketch10.addGeometry(Part.Circle(V(31, -56, 0), V(0, 0, 1), 1.4), False)
sketch10.addConstraint([
    Sketcher.Constraint("Diameter", 0, Q("2.8 mm")),
    Sketcher.Constraint("DistanceX", -1, 1, 0, 3, Q("31 mm")),
    Sketcher.Constraint("DistanceY", 0, 3, -1, 1, Q("56 mm")),
])
pocket5 = doc.addObject("PartDesign::Pocket", "Pocket004")
body.addObject(pocket5)
pocket5.Profile = sketch10
pocket5.Length = 16

sketch11 = doc.addObject("Sketcher::SketchObject", "Sketch010")
body.addObject(sketch11)
sketch11.AttachmentSupport = (doc.XZ_Plane, [""])
sketch11.MapMode = "FlatFace"
sketch11.AttachmentOffset = App.Placement(V(0, 0, -58), App.Rotation())
sketch11.addGeometry([
    Part.LineSegment(V(180, -59, 0), V(169.8, -59, 0)),
    Part.LineSegment(V(169.8, -59, 0), V(177, -53, 0)),
    Part.LineSegment(V(177, -53, 0), V(180, -53, 0)),
    Part.LineSegment(V(180, -53, 0), V(180, -59, 0)),
], False)
sketch11.addConstraint([
    Sketcher.Constraint("Coincident", 0, 2, 1, 1),
    Sketcher.Constraint("Coincident", 1, 2, 2, 1),
    Sketcher.Constraint("Coincident", 2, 2, 3, 1),
    Sketcher.Constraint("Coincident", 3, 2, 0, 1),
    Sketcher.Constraint("Horizontal", 0),
    Sketcher.Constraint("Horizontal", 2),
    Sketcher.Constraint("Vertical", 3),
    Sketcher.Constraint("DistanceX", 2, 1, 2, 2, Q("3 mm")),
    Sketcher.Constraint("DistanceY", 3, 2, 3, 1, Q("6 mm")),
    Sketcher.Constraint("Angle", 1, Q("40 deg")),
    Sketcher.Constraint("DistanceY", 0, 2, -1, 1, Q("59 mm")),
    Sketcher.Constraint("DistanceX", -1, 1, 1, 2, Q("177 mm")),
])
pad6 = doc.addObject("PartDesign::Pad", "Pad005")
body.addObject(pad6)
pad6.Profile = sketch11
pad6.Length = 6

sketch12 = doc.addObject("Sketcher::SketchObject", "Sketch011")
body.addObject(sketch12)
sketch12.AttachmentSupport = (doc.YZ_Plane, [""])
sketch12.MapMode = "FlatFace"
sketch12.AttachmentOffset = App.Placement(V(0, 0, 180), App.Rotation())
sketch12.addGeometry(Part.Circle(V(55, -56, 0), V(0, 0, 1), 1.4), False)
sketch12.addConstraint([
    Sketcher.Constraint("Diameter", 0, Q("2.8 mm")),
    Sketcher.Constraint("DistanceX", -1, 1, 0, 3, Q("55 mm")),
    Sketcher.Constraint("DistanceY", 0, 3, -1, 1, Q("56 mm")),
])
pocket6 = doc.addObject("PartDesign::Pocket", "Pocket005")
body.addObject(pocket6)
pocket6.Profile = sketch12
pocket6.Length = 16
doc.recompute()

mirrored2 = doc.addObject("PartDesign::Mirrored", "Mirrored001")
body.addObject(mirrored2)
mirrored2.Originals = [pad4, pocket4, pad5, pocket5, pad6, pocket6]
mirrored2.MirrorPlane = (doc.XY_Plane, [""])
body.Tip = mirrored2

sketch13 = doc.addObject("Sketcher::SketchObject", "Sketch012")
body.addObject(sketch13)
sketch13.AttachmentSupport = (doc.XZ_Plane, [""])
sketch13.MapMode = "FlatFace"
sketch13.AttachmentOffset = App.Placement(V(0, 0, -23.5), App.Rotation())
sketch13.addGeometry([
    Part.LineSegment(V(52, -25, 0), V(62, -15, 0)),
    Part.LineSegment(V(62, -15, 0), V(62, 15, 0)),
    Part.LineSegment(V(62, 15, 0), V(52, 25, 0)),
    Part.LineSegment(V(52, 25, 0), V(50, 25, 0)),
    Part.LineSegment(V(50, 25, 0), V(50, -25, 0)),
    Part.LineSegment(V(50, -25, 0), V(52, -25, 0)),
    Part.LineSegment(V(84, -25, 0), V(86, -25, 0)),
    Part.LineSegment(V(86, -25, 0), V(96, -15, 0)),
    Part.LineSegment(V(96, -15, 0), V(96, 15, 0)),
    Part.LineSegment(V(96, 15, 0), V(86, 25, 0)),
    Part.LineSegment(V(86, 25, 0), V(84, 25, 0)),
    Part.LineSegment(V(84, 25, 0), V(84, -25, 0)),
], False)
sketch13.addConstraint([
    Sketcher.Constraint("Coincident", 0, 2, 1, 1),
    Sketcher.Constraint("Coincident", 1, 2, 2, 1),
    Sketcher.Constraint("Coincident", 2, 2, 3, 1),
    Sketcher.Constraint("Coincident", 3, 2, 4, 1),
    Sketcher.Constraint("Coincident", 4, 2, 5, 1),
    Sketcher.Constraint("Coincident", 5, 2, 0, 1),
    Sketcher.Constraint("Coincident", 6, 2, 7, 1),
    Sketcher.Constraint("Coincident", 7, 2, 8, 1),
    Sketcher.Constraint("Coincident", 8, 2, 9, 1),
    Sketcher.Constraint("Coincident", 9, 2, 10, 1),
    Sketcher.Constraint("Coincident", 10, 2, 11, 1),
    Sketcher.Constraint("Coincident", 11, 2, 6, 1),
    Sketcher.Constraint("Vertical", 1),
    Sketcher.Constraint("Horizontal", 3),
    Sketcher.Constraint("Vertical", 4),
    Sketcher.Constraint("Horizontal", 5),
    Sketcher.Constraint("Horizontal", 6),
    Sketcher.Constraint("Vertical", 8),
    Sketcher.Constraint("Horizontal", 10),
    Sketcher.Constraint("Vertical", 11),
    Sketcher.Constraint("Symmetric", 2, 2, 5, 2, -1),
    Sketcher.Constraint("Symmetric", 6, 2, 9, 2, -1),
    Sketcher.Constraint("Perpendicular", 0, 2),
    Sketcher.Constraint("Perpendicular", 2, 7),
    Sketcher.Constraint("Perpendicular", 7, 9),
    Sketcher.Constraint("Horizontal", 5, 2, 6, 2),
    Sketcher.Constraint("Horizontal", 0, 2, 7, 2),
    Sketcher.Constraint("Equal", 5, 6),
    Sketcher.Constraint("Equal", 0, 2),
    Sketcher.Constraint("DistanceX", 3, 2, 3, 1, Q("2 mm")),
    Sketcher.Constraint("DistanceY", 1, 1, 1, 2, Q("30 mm")),
    Sketcher.Constraint("DistanceY", 4, 2, 4, 1, Q("50 mm")),
    Sketcher.Constraint("DistanceX", -1, 1, 0, 2, Q("62 mm")),
    Sketcher.Constraint("DistanceX", -1, 1, 6, 2, Q("86 mm")),
])
pocket7 = doc.addObject("PartDesign::Pocket", "Pocket006")
body.addObject(pocket7)
pocket7.Profile = sketch13
pocket7.Length = 8

sketch14 = doc.addObject("Sketcher::SketchObject", "Sketch013")
body.addObject(sketch14)
sketch14.AttachmentSupport = (doc.XZ_Plane, [""])
sketch14.MapMode = "FlatFace"
sketch14.AttachmentOffset = App.Placement(V(0, 0, -28), App.Rotation())
sketch14.addGeometry([
    Part.LineSegment(V(150.2, -59, 0), V(117.1, -59, 0)),
    Part.LineSegment(V(117.1, -59, 0), V(122.2, -56, 0)),
    Part.LineSegment(V(122.2, -56, 0), V(150.2, -56, 0)),
    Part.LineSegment(V(150.2, -56, 0), V(150.2, -59, 0)),
    Part.LineSegment(V(122.2, 56, 0), V(117.1, 59, 0)),
    Part.LineSegment(V(117.1, 59, 0), V(150.2, 59, 0)),
    Part.LineSegment(V(150.2, 59, 0), V(150.2, 56, 0)),
    Part.LineSegment(V(150.2, 56, 0), V(122.2, 56, 0)),
], False)
sketch14.addConstraint([
    Sketcher.Constraint("Coincident", 0, 2, 1, 1),
    Sketcher.Constraint("Coincident", 1, 2, 2, 1),
    Sketcher.Constraint("Coincident", 2, 2, 3, 1),
    Sketcher.Constraint("Coincident", 3, 2, 0, 1),
    Sketcher.Constraint("Coincident", 4, 2, 5, 1),
    Sketcher.Constraint("Coincident", 5, 2, 6, 1),
    Sketcher.Constraint("Coincident", 6, 2, 7, 1),
    Sketcher.Constraint("Coincident", 7, 2, 4, 1),
    Sketcher.Constraint("Horizontal", 0),
    Sketcher.Constraint("Horizontal", 2),
    Sketcher.Constraint("Vertical", 3),
    Sketcher.Constraint("Horizontal", 5),
    Sketcher.Constraint("Vertical", 6),
    Sketcher.Constraint("Horizontal", 7),
    Sketcher.Constraint("Symmetric", 0, 2, 4, 2, -1),
    Sketcher.Constraint("Symmetric", 2, 2, 6, 2, -1),
    Sketcher.Constraint("Vertical", 1, 2, 7, 2),
    Sketcher.Constraint("DistanceX", 2, 1, 2, 2, Q("28 mm")),
    Sketcher.Constraint("DistanceY", 3, 2, 3, 1, Q("3 mm")),
    Sketcher.Constraint("Angle", 1, Q("30 deg")),
    Sketcher.Constraint("DistanceY", 0, 2, -1, 1, Q("59 mm")),
    Sketcher.Constraint("DistanceX", -1, 1, 1, 2, Q("122.25 mm")),
])
pad7 = doc.addObject("PartDesign::Pad", "Pad006")
body.addObject(pad7)
pad7.Profile = sketch14
pad7.Length = 30
pad7.Reversed = True

sketch15 = doc.addObject("Sketcher::SketchObject", "Sketch014")
body.addObject(sketch15)
sketch15.AttachmentSupport = (doc.XY_Plane, [""])
sketch15.MapMode = "FlatFace"
sketch15.AttachmentOffset = App.Placement(V(0, 0, 59), App.Rotation())
sketch15.addGeometry(Part.Circle(V(135, 46, 0), V(0, 0, 1), 5), False)
sketch15.addConstraint([
    Sketcher.Constraint("Diameter", 0, Q("10.5 mm")),
    Sketcher.Constraint("DistanceX", -1, 1, 0, 3, Q("135 mm")),
    Sketcher.Constraint("DistanceY", -1, 1, 0, 3, Q("45.5 mm")),
])
pocket8 = doc.addObject("PartDesign::Pocket", "Pocket007")
body.addObject(pocket8)
pocket8.Profile = sketch15
pocket8.Type = "ThroughAll"

sketch16 = doc.addObject("Sketcher::SketchObject", "Sketch015")
body.addObject(sketch16)
sketch16.AttachmentSupport = (doc.XZ_Plane, [""])
sketch16.MapMode = "FlatFace"
sketch16.AttachmentOffset = App.Placement(V(0, 0, -28), App.Rotation())
sketch16.addGeometry([
    Part.Circle(V(155, 37.5, 0), V(0, 0, 1), 1.5),
    Part.Circle(V(115, 37.5, 0), V(0, 0, 1), 1.5),
    Part.Circle(V(115, -37.5, 0), V(0, 0, 1), 1.5),
    Part.Circle(V(155, -37.5, 0), V(0, 0, 1), 1.5),
], False)
sketch16.addConstraint([
    Sketcher.Constraint("Equal", 0, 1),
    Sketcher.Constraint("Equal", 1, 2),
    Sketcher.Constraint("Equal", 2, 3),
    Sketcher.Constraint("Symmetric", 1, 3, 2, 3, -1),
    Sketcher.Constraint("Symmetric", 0, 3, 3, 3, -1),
    Sketcher.Constraint("Horizontal", 0, 3, 1, 3),
    Sketcher.Constraint("Diameter", 0, Q("3 mm")),
    Sketcher.Constraint("DistanceX", -1, 1, 0, 3, Q("155 mm")),
    Sketcher.Constraint("DistanceX", -1, 1, 1, 3, Q("115 mm")),
    Sketcher.Constraint("DistanceY", 2, 3, 1, 3, Q("75 mm")),
])
doc.recompute()
hole = doc.addObject("PartDesign::Hole", "Hole")
body.addObject(hole)
hole.Profile = sketch16
hole.ThreadType = "None"
hole.Diameter = 3
hole.DepthType = "Dimension"
hole.Depth = 10
hole.DrillPoint = "Angled"
hole.DrillPointAngle = 118
hole.Reversed = True

sketch17 = doc.addObject("Sketcher::SketchObject", "Sketch016")
body.addObject(sketch17)
sketch17.AttachmentSupport = (doc.XY_Plane, [""])
sketch17.MapMode = "FlatFace"
sketch17.AttachmentOffset = App.Placement(V(0, 0, 31.5), App.Rotation())
sketch17.addGeometry([
    Part.LineSegment(V(20, 11.5, 0), V(20, 8.5, 0)),
    Part.LineSegment(V(20, 8.5, 0), V(26, 8.5, 0)),
    Part.LineSegment(V(26, 8.5, 0), V(26, 11.5, 0)),
    Part.LineSegment(V(26, 11.5, 0), V(20, 11.5, 0)),
], False)
sketch17.addConstraint([
    Sketcher.Constraint("Coincident", 0, 2, 1, 1),
    Sketcher.Constraint("Coincident", 1, 2, 2, 1),
    Sketcher.Constraint("Coincident", 2, 2, 3, 1),
    Sketcher.Constraint("Coincident", 3, 2, 0, 1),
    Sketcher.Constraint("Vertical", 0),
    Sketcher.Constraint("Horizontal", 1),
    Sketcher.Constraint("Vertical", 2),
    Sketcher.Constraint("Horizontal", 3),
    Sketcher.Constraint("DistanceX", 1, 1, 1, 2, Q("6 mm")),
    Sketcher.Constraint("DistanceY", 0, 2, 0, 1, Q("3 mm")),
    Sketcher.Constraint("DistanceX", -1, 1, 0, 2, Q("20 mm")),
    Sketcher.Constraint("DistanceY", -1, 1, 0, 2, Q("8.5 mm")),
])
pocket9 = doc.addObject("PartDesign::Pocket", "Pocket008")
body.addObject(pocket9)
pocket9.Profile = sketch17
pocket9.Length = 10

sketch18 = doc.addObject("Sketcher::SketchObject", "Sketch017")
body.addObject(sketch18)
sketch18.AttachmentSupport = (doc.XY_Plane, [""])
sketch18.MapMode = "FlatFace"
sketch18.AttachmentOffset = App.Placement(V(0, 0, 60.5), App.Rotation())
sketch18.addGeometry([
    Part.LineSegment(V(35, 49, 0), V(35, 34, 0)),
    Part.LineSegment(V(35, 34, 0), V(59, 34, 0)),
    Part.LineSegment(V(59, 34, 0), V(59, 49, 0)),
    Part.LineSegment(V(59, 49, 0), V(35, 49, 0)),
], False)
sketch18.addConstraint([
    Sketcher.Constraint("Coincident", 0, 2, 1, 1),
    Sketcher.Constraint("Coincident", 1, 2, 2, 1),
    Sketcher.Constraint("Coincident", 2, 2, 3, 1),
    Sketcher.Constraint("Coincident", 3, 2, 0, 1),
    Sketcher.Constraint("Vertical", 0),
    Sketcher.Constraint("Horizontal", 1),
    Sketcher.Constraint("Vertical", 2),
    Sketcher.Constraint("Horizontal", 3),
    Sketcher.Constraint("DistanceX", 1, 1, 1, 2, Q("24 mm")),
    Sketcher.Constraint("DistanceY", 0, 2, 0, 1, Q("15 mm")),
    Sketcher.Constraint("DistanceX", -1, 1, 0, 2, Q("35 mm")),
    Sketcher.Constraint("DistanceY", -1, 1, 0, 2, Q("34 mm")),
])
pocket10 = doc.addObject("PartDesign::Pocket", "Pocket009")
body.addObject(pocket10)
pocket10.Profile = sketch18
pocket10.Length = 5

doc.recompute()
